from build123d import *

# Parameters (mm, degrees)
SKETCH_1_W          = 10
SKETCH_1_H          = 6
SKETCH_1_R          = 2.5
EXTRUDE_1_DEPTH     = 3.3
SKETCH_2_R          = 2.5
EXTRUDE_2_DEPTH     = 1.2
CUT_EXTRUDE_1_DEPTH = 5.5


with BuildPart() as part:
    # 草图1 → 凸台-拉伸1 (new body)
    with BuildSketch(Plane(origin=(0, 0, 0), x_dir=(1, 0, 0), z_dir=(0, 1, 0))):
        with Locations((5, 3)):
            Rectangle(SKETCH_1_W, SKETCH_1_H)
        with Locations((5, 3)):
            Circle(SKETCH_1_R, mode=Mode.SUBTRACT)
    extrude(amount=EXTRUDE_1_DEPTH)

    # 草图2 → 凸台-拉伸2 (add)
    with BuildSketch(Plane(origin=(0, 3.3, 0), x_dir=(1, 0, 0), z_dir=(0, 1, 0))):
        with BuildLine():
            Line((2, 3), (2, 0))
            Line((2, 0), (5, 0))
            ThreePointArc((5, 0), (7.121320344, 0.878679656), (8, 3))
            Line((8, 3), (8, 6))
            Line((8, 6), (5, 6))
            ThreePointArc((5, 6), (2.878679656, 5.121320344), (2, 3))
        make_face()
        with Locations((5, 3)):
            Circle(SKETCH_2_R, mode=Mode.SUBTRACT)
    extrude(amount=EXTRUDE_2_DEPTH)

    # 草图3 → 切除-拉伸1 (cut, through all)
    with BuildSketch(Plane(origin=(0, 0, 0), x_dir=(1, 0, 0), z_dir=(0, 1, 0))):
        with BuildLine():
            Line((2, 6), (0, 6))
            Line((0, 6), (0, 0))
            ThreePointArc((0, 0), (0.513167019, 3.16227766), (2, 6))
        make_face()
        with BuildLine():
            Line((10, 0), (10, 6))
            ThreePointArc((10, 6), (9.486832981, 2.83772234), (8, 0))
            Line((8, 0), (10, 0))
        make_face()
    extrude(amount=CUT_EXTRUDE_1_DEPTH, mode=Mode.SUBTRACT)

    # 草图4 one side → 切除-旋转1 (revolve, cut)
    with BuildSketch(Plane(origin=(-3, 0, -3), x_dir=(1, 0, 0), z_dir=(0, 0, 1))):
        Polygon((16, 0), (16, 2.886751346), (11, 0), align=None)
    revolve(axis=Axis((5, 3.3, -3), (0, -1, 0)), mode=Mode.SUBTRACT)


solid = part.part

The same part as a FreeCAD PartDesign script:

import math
import FreeCAD as App
import Part
import Sketcher
Q = App.Units.Quantity


def add_polygon(sketch, points):
    """Adds a closed chain of lines whose ends are joined by coincident constraints."""
    first, n = sketch.GeometryCount, len(points)
    for a, b in zip(points, points[1:] + points[:1]):
        sketch.addGeometry(Part.LineSegment(App.Vector(*a, 0), App.Vector(*b, 0)), False)
    for i in range(n):
        sketch.addConstraint(Sketcher.Constraint("Coincident", first + i, 2, first + (i + 1) % n, 1))

doc = App.newDocument("Part")
params = doc.addObject("Spreadsheet::Sheet", "Params")
for row, (alias, value) in enumerate([
    ("sketch1_diameter", "5 mm"),
    ("sketch1_width", "10 mm"),
    ("sketch1_height", "6 mm"),
    ("pad1_length", "3.3 mm"),
    ("sketch2_diameter", "5 mm"),
    ("sketch2_radius", "3 mm"),
    ("pad2_length", "1.2 mm"),
    ("sketch3_radius", "10 mm"),
    ("sketch3_width", "2 mm"),
    ("sketch4_width", "5 mm"),
    ("groove_angle", "360 deg"),
], start=1):
    params.set(f"A{row}", alias)
    params.set(f"B{row}", "=" + value)
    params.setAlias(f"B{row}", alias)

body = doc.addObject("PartDesign::Body", "Body")

sketch1 = body.newObject("Sketcher::SketchObject", "Sketch")
sketch1.AttachmentSupport = (doc.getObject("XZ_Plane"), [""])
sketch1.MapMode = "FlatFace"
add_polygon(sketch1, [(0, -6), (0, 0), (10, 0), (10, -6)])
sketch1.addGeometry(Part.Circle(App.Vector(5, -3, 0), App.Vector(0, 0, 1), 2.5), False)
sketch1.addConstraint([
    Sketcher.Constraint("Vertical", 0),
    Sketcher.Constraint("Horizontal", 1),
    Sketcher.Constraint("Vertical", 2),
    Sketcher.Constraint("Horizontal", 3),
    Sketcher.Constraint("Coincident", 0, 2, -1, 1),
    Sketcher.Constraint("Diameter", 4, Q("5 mm")),
    Sketcher.Constraint("DistanceX", 1, 1, 1, 2, Q("10 mm")),
    Sketcher.Constraint("DistanceY", 0, 1, 0, 2, Q("6 mm")),
    Sketcher.Constraint("DistanceX", -1, 1, 4, 3, Q("5 mm")),
    Sketcher.Constraint("DistanceY", 4, 3, -1, 1, Q("3 mm")),
])
sketch1.setExpression("Constraints[9]", "Params.sketch1_diameter")
sketch1.setExpression("Constraints[10]", "Params.sketch1_width")
sketch1.setExpression("Constraints[11]", "Params.sketch1_height")
pad1 = body.newObject("PartDesign::Pad", "Pad")
pad1.Profile = sketch1
pad1.setExpression("Length", "Params.pad1_length")
pad1.Reversed = True

sketch2 = body.newObject("Sketcher::SketchObject", "Sketch001")
sketch2.AttachmentSupport = (doc.getObject("XZ_Plane"), [""])
sketch2.MapMode = "FlatFace"
sketch2.AttachmentOffset = App.Placement(App.Vector(0, 0, -3.3), App.Rotation())
sketch2.addGeometry([
    Part.LineSegment(App.Vector(2, -3, 0), App.Vector(2, 0, 0)),
    Part.LineSegment(App.Vector(2, 0, 0), App.Vector(5, 0, 0)),
    Part.ArcOfCircle(Part.Circle(App.Vector(5, -3, 0), App.Vector(0, 0, 1), 3), math.radians(0), math.radians(90)),
    Part.LineSegment(App.Vector(8, -3, 0), App.Vector(8, -6, 0)),
    Part.LineSegment(App.Vector(8, -6, 0), App.Vector(5, -6, 0)),
    Part.ArcOfCircle(Part.Circle(App.Vector(5, -3, 0), App.Vector(0, 0, 1), 3), math.radians(180), math.radians(270)),
    Part.Circle(App.Vector(5, -3, 0), App.Vector(0, 0, 1), 2.5),
], False)
sketch2.addConstraint([
    Sketcher.Constraint("Coincident", 0, 2, 1, 1),
    Sketcher.Constraint("Tangent", 1, 2, 2, 2),
    Sketcher.Constraint("Tangent", 2, 1, 3, 1),
    Sketcher.Constraint("Coincident", 3, 2, 4, 1),
    Sketcher.Constraint("Tangent", 4, 2, 5, 2),
    Sketcher.Constraint("Tangent", 5, 1, 0, 1),
    Sketcher.Constraint("Vertical", 0),
    Sketcher.Constraint("Horizontal", 1),
    Sketcher.Constraint("Vertical", 3),
    Sketcher.Constraint("Horizontal", 4),
    Sketcher.Constraint("Coincident", 5, 3, 2, 3),
    Sketcher.Constraint("Coincident", 6, 3, 2, 3),
    Sketcher.Constraint("Equal", 2, 5),
    Sketcher.Constraint("PointOnObject", 0, 2, -1),
    Sketcher.Constraint("Diameter", 6, Q("5 mm")),
    Sketcher.Constraint("Radius", 2, Q("3 mm")),
    Sketcher.Constraint("DistanceX", -1, 1, 2, 3, Q("5 mm")),
])
sketch2.setExpression("Constraints[14]", "Params.sketch2_diameter")
sketch2.setExpression("Constraints[15]", "Params.sketch2_radius")
pad2 = body.newObject("PartDesign::Pad", "Pad001")
pad2.Profile = sketch2
pad2.setExpression("Length", "Params.pad2_length")
pad2.Reversed = True

sketch3 = body.newObject("Sketcher::SketchObject", "Sketch002")
sketch3.AttachmentSupport = (doc.getObject("XZ_Plane"), [""])
sketch3.MapMode = "FlatFace"
sketch3.addGeometry([
    Part.LineSegment(App.Vector(2, -6, 0), App.Vector(0, -6, 0)),
    Part.LineSegment(App.Vector(0, -6, 0), App.Vector(0, 0, 0)),
    Part.ArcOfCircle(Part.Circle(App.Vector(10, 0, 0), App.Vector(0, 0, 1), 10), math.radians(180), math.radians(217)),
    Part.LineSegment(App.Vector(10, 0, 0), App.Vector(10, -6, 0)),
    Part.ArcOfCircle(Part.Circle(App.Vector(0, -6, 0), App.Vector(0, 0, 1), 10), math.radians(0), math.radians(37)),
    Part.LineSegment(App.Vector(8, 0, 0), App.Vector(10, 0, 0)),
], False)
sketch3.addConstraint([
    Sketcher.Constraint("Coincident", 0, 2, 1, 1),
    Sketcher.Constraint("Tangent", 1, 2, 2, 1),
    Sketcher.Constraint("Coincident", 2, 2, 0, 1),
    Sketcher.Constraint("Tangent", 3, 2, 4, 1),
    Sketcher.Constraint("Coincident", 4, 2, 5, 1),
    Sketcher.Constraint("Coincident", 5, 2, 3, 1),
    Sketcher.Constraint("Horizontal", 0),
    Sketcher.Constraint("Vertical", 1),
    Sketcher.Constraint("Vertical", 3),
    Sketcher.Constraint("Horizontal", 5),
    Sketcher.Constraint("Coincident", 1, 2, -1, 1),
    Sketcher.Constraint("Coincident", 0, 2, 4, 3),
    Sketcher.Constraint("Coincident", 5, 2, 2, 3),
    Sketcher.Constraint("Radius", 2, Q("10 mm")),
    Sketcher.Constraint("DistanceX", 0, 2, 0, 1, Q("2 mm")),
])
sketch3.setExpression("Constraints[13]", "Params.sketch3_radius")
sketch3.setExpression("Constraints[14]", "Params.sketch3_width")
pocket1 = body.newObject("PartDesign::Pocket", "Pocket")
pocket1.Profile = sketch3
pocket1.Type = "ThroughAll"

sketch4 = body.newObject("Sketcher::SketchObject", "Sketch003")
sketch4.AttachmentSupport = (doc.getObject("XY_Plane"), [""])
sketch4.MapMode = "FlatFace"
sketch4.AttachmentOffset = App.Placement(App.Vector(0, 0, -3), App.Rotation())
add_polygon(sketch4, [(13, 0), (13, 2.9), (8, 0)])
sketch4.addGeometry(Part.LineSegment(App.Vector(5, 2.9, 0), App.Vector(5, 0, 0)), True)
sketch4.addConstraint([
    Sketcher.Constraint("Vertical", 0),
    Sketcher.Constraint("Horizontal", 2),
    Sketcher.Constraint("Vertical", 3),
    Sketcher.Constraint("PointOnObject", 1, 2, -1),
    Sketcher.Constraint("PointOnObject", 3, 2, -1),
    Sketcher.Constraint("Horizontal", 0, 2, 3, 1),
    Sketcher.Constraint("DistanceX", 2, 1, 2, 2, Q("5 mm")),
    Sketcher.Constraint("Angle", 1, Q("-150 deg")),
    Sketcher.Constraint("DistanceX", -1, 1, 0, 2, Q("13 mm")),
    Sketcher.Constraint("DistanceX", -1, 1, 3, 1, Q("5 mm")),
])
sketch4.setExpression("Constraints[9]", "Params.sketch4_width")
groove = body.newObject("PartDesign::Groove", "Groove")
groove.Profile = sketch4
groove.ReferenceAxis = (sketch4, ["Axis0"])
groove.setExpression("Angle", "Params.groove_angle")

doc.recompute()
